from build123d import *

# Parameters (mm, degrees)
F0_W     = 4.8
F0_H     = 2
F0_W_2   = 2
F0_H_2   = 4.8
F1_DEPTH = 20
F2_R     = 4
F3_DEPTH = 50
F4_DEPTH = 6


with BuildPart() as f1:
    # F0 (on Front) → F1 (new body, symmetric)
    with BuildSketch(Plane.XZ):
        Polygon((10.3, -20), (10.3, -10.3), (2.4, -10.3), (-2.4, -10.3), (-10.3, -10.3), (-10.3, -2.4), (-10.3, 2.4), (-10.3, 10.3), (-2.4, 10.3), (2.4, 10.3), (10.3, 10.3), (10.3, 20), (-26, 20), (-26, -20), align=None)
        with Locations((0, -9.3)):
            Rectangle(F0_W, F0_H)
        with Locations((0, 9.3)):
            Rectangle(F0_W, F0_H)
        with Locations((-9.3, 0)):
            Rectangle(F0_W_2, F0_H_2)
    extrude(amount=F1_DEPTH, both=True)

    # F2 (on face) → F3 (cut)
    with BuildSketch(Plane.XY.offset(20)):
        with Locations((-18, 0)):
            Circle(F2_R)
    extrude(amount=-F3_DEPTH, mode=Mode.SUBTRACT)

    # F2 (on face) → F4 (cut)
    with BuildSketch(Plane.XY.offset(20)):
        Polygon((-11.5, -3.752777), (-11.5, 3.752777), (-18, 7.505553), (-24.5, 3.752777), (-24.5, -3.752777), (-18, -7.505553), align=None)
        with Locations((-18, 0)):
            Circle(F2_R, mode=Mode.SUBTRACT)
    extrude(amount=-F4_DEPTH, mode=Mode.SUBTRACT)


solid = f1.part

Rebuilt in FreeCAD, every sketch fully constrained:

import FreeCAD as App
import Part
import Sketcher
Q = App.Units.Quantity


def add_polygon(sketch, points):
    """Adds a closed chain of lines whose ends are joined by coincident constraints."""
    first, n = sketch.GeometryCount, len(points)
    for a, b in zip(points, points[1:] + points[:1]):
        sketch.addGeometry(Part.LineSegment(App.Vector(*a, 0), App.Vector(*b, 0)), False)
    for i in range(n):
        sketch.addConstraint(Sketcher.Constraint("Coincident", first + i, 2, first + (i + 1) % n, 1))

doc = App.newDocument("Part")
params = doc.addObject("Spreadsheet::Sheet", "Params")
for row, (alias, value) in enumerate([
    ("sketch1_width", "2 mm"),
    ("sketch1_height", "40 mm"),
    ("sketch1_width2", "7.9 mm"),
    ("sketch1_width3", "4.8 mm"),
    ("sketch1_width4", "36.3 mm"),
    ("pad1_length", "40 mm"),
    ("sketch2_diameter", "8 mm"),
    ("pocket1_length", "50 mm"),
    ("sketch3_diameter", "8 mm"),
    ("pocket2_length", "6 mm"),
], start=1):
    params.set(f"A{row}", alias)
    params.set(f"B{row}", "=" + value)
    params.setAlias(f"B{row}", alias)

body = doc.addObject("PartDesign::Body", "Body")

sketch1 = body.newObject("Sketcher::SketchObject", "Sketch")
sketch1.AttachmentSupport = (doc.getObject("XZ_Plane"), [""])
sketch1.MapMode = "FlatFace"
add_polygon(sketch1, [(10.3, -20), (10.3, -10.3), (2.4, -10.3), (2.4, -8.3), (-2.4, -8.3), (-2.4, -10.3), (-10.3, -10.3), (-10.3, -2.4), (-8.3, -2.4), (-8.3, 2.4), (-10.3, 2.4), (-10.3, 10.3), (-2.4, 10.3), (-2.4, 8.3), (2.4, 8.3), (2.4, 10.3), (10.3, 10.3), (10.3, 20), (-26, 20), (-26, -20)])
sketch1.addConstraint(Sketcher.Constraint("Vertical", 0))
sketch1.addConstraint(Sketcher.Constraint("Horizontal", 1))
sketch1.addConstraint(Sketcher.Constraint("Vertical", 2))
sketch1.addConstraint(Sketcher.Constraint("Horizontal", 3))
sketch1.addConstraint(Sketcher.Constraint("Vertical", 4))
sketch1.addConstraint(Sketcher.Constraint("Horizontal", 5))
sketch1.addConstraint(Sketcher.Constraint("Vertical", 6))
sketch1.addConstraint(Sketcher.Constraint("Horizontal", 7))
sketch1.addConstraint(Sketcher.Constraint("Vertical", 8))
sketch1.addConstraint(Sketcher.Constraint("Horizontal", 9))
sketch1.addConstraint(Sketcher.Constraint("Vertical", 10))
sketch1.addConstraint(Sketcher.Constraint("Horizontal", 11))
sketch1.addConstraint(Sketcher.Constraint("Vertical", 12))
sketch1.addConstraint(Sketcher.Constraint("Horizontal", 13))
sketch1.addConstraint(Sketcher.Constraint("Vertical", 14))
sketch1.addConstraint(Sketcher.Constraint("Horizontal", 15))
sketch1.addConstraint(Sketcher.Constraint("Vertical", 16))
sketch1.addConstraint(Sketcher.Constraint("Horizontal", 17))
sketch1.addConstraint(Sketcher.Constraint("Vertical", 18))
sketch1.addConstraint(Sketcher.Constraint("Horizontal", 19))
sketch1.addConstraint(Sketcher.Constraint("Symmetric", 0, 2, 10, 2, -1, 1))
sketch1.addConstraint(Sketcher.Constraint("Symmetric", 2, 2, 12, 2, -1, 1))
sketch1.addConstraint(Sketcher.Constraint("Symmetric", 4, 2, 14, 2, -1, 1))
sketch1.addConstraint(Sketcher.Constraint("Symmetric", 1, 2, 4, 2, -2))
sketch1.addConstraint(Sketcher.Constraint("Symmetric", 6, 2, 9, 2, -1))
sketch1.addConstraint(Sketcher.Constraint("Symmetric", 16, 2, 19, 2, -1))
sketch1.addConstraint(Sketcher.Constraint("Equal", 9, 2))
sketch1.addConstraint(Sketcher.Constraint("Equal", 15, 6))
sketch1.addConstraint(Sketcher.Constraint("Equal", 13, 8))
sketch1.addConstraint(Sketcher.Constraint("DistanceX", 7, 1, 7, 2, Q("2 mm")))
sketch1.addConstraint(Sketcher.Constraint("DistanceY", 18, 2, 18, 1, Q("40 mm")))
sketch1.addConstraint(Sketcher.Constraint("DistanceX", 1, 2, 1, 1, Q("7.9 mm")))
sketch1.addConstraint(Sketcher.Constraint("DistanceX", 3, 2, 3, 1, Q("4.8 mm")))
sketch1.addConstraint(Sketcher.Constraint("DistanceX", 17, 2, 17, 1, Q("36.3 mm")))
sketch1.setExpression("Constraints[49]", "Params.sketch1_width")
sketch1.setExpression("Constraints[50]", "Params.sketch1_height")
sketch1.setExpression("Constraints[51]", "Params.sketch1_width2")
sketch1.setExpression("Constraints[52]", "Params.sketch1_width3")
sketch1.setExpression("Constraints[53]", "Params.sketch1_width4")
pad1 = body.newObject("PartDesign::Pad", "Pad")
pad1.Profile = sketch1
pad1.setExpression("Length", "Params.pad1_length")
pad1.Midplane = True

sketch2 = body.newObject("Sketcher::SketchObject", "Sketch001")
sketch2.AttachmentSupport = (doc.getObject("XY_Plane"), [""])
sketch2.MapMode = "FlatFace"
sketch2.AttachmentOffset = App.Placement(App.Vector(0, 0, 20), App.Rotation())
sketch2.addGeometry(Part.Circle(App.Vector(-18, 0, 0), App.Vector(0, 0, 1), 4), False)
sketch2.addConstraint(Sketcher.Constraint("PointOnObject", 0, 3, -1))
sketch2.addConstraint(Sketcher.Constraint("Diameter", 0, Q("8 mm")))
sketch2.addConstraint(Sketcher.Constraint("DistanceX", 0, 3, -1, 1, Q("18 mm")))
sketch2.setExpression("Constraints[1]", "Params.sketch2_diameter")
pocket1 = body.newObject("PartDesign::Pocket", "Pocket")
pocket1.Profile = sketch2
pocket1.setExpression("Length", "Params.pocket1_length")

sketch3 = body.newObject("Sketcher::SketchObject", "Sketch002")
sketch3.AttachmentSupport = (doc.getObject("XY_Plane"), [""])
sketch3.MapMode = "FlatFace"
sketch3.AttachmentOffset = App.Placement(App.Vector(0, 0, 20), App.Rotation())
add_polygon(sketch3, [(-11.5, -3.8), (-11.5, 3.8), (-18, 7.5), (-24.5, 3.8), (-24.5, -3.8), (-18, -7.5)])
sketch3.addGeometry(Part.Circle(App.Vector(-18, 0, 0), App.Vector(0, 0, 1), 4), False)
sketch3.addConstraint(Sketcher.Constraint("Vertical", 0))
sketch3.addConstraint(Sketcher.Constraint("Vertical", 3))
sketch3.addConstraint(Sketcher.Constraint("Symmetric", 1, 2, 4, 2, -1))
sketch3.addConstraint(Sketcher.Constraint("PointOnObject", 6, 3, -1))
sketch3.addConstraint(Sketcher.Constraint("Parallel", 1, 4))
sketch3.addConstraint(Sketcher.Constraint("Parallel", 2, 5))
sketch3.addConstraint(Sketcher.Constraint("Horizontal", 0, 2, 2, 2))
sketch3.addConstraint(Sketcher.Constraint("Horizontal", 3, 2, 5, 2))
sketch3.addConstraint(Sketcher.Constraint("Vertical", 6, 3, 1, 2))
sketch3.addConstraint(Sketcher.Constraint("Diameter", 6, Q("8 mm")))
sketch3.addConstraint(Sketcher.Constraint("Angle", 1, Q("150.000005 deg")))
sketch3.addConstraint(Sketcher.Constraint("DistanceX", 6, 3, -1, 1, Q("18 mm")))
sketch3.addConstraint(Sketcher.Constraint("DistanceX", 2, 2, 0, 2, Q("13 mm")))
sketch3.addConstraint(Sketcher.Constraint("DistanceY", 0, 1, 0, 2, Q("7.505554 mm")))
sketch3.setExpression("Constraints[15]", "Params.sketch3_diameter")
pocket2 = body.newObject("PartDesign::Pocket", "Pocket001")
pocket2.Profile = sketch3
pocket2.setExpression("Length", "Params.pocket2_length")

doc.recompute()
